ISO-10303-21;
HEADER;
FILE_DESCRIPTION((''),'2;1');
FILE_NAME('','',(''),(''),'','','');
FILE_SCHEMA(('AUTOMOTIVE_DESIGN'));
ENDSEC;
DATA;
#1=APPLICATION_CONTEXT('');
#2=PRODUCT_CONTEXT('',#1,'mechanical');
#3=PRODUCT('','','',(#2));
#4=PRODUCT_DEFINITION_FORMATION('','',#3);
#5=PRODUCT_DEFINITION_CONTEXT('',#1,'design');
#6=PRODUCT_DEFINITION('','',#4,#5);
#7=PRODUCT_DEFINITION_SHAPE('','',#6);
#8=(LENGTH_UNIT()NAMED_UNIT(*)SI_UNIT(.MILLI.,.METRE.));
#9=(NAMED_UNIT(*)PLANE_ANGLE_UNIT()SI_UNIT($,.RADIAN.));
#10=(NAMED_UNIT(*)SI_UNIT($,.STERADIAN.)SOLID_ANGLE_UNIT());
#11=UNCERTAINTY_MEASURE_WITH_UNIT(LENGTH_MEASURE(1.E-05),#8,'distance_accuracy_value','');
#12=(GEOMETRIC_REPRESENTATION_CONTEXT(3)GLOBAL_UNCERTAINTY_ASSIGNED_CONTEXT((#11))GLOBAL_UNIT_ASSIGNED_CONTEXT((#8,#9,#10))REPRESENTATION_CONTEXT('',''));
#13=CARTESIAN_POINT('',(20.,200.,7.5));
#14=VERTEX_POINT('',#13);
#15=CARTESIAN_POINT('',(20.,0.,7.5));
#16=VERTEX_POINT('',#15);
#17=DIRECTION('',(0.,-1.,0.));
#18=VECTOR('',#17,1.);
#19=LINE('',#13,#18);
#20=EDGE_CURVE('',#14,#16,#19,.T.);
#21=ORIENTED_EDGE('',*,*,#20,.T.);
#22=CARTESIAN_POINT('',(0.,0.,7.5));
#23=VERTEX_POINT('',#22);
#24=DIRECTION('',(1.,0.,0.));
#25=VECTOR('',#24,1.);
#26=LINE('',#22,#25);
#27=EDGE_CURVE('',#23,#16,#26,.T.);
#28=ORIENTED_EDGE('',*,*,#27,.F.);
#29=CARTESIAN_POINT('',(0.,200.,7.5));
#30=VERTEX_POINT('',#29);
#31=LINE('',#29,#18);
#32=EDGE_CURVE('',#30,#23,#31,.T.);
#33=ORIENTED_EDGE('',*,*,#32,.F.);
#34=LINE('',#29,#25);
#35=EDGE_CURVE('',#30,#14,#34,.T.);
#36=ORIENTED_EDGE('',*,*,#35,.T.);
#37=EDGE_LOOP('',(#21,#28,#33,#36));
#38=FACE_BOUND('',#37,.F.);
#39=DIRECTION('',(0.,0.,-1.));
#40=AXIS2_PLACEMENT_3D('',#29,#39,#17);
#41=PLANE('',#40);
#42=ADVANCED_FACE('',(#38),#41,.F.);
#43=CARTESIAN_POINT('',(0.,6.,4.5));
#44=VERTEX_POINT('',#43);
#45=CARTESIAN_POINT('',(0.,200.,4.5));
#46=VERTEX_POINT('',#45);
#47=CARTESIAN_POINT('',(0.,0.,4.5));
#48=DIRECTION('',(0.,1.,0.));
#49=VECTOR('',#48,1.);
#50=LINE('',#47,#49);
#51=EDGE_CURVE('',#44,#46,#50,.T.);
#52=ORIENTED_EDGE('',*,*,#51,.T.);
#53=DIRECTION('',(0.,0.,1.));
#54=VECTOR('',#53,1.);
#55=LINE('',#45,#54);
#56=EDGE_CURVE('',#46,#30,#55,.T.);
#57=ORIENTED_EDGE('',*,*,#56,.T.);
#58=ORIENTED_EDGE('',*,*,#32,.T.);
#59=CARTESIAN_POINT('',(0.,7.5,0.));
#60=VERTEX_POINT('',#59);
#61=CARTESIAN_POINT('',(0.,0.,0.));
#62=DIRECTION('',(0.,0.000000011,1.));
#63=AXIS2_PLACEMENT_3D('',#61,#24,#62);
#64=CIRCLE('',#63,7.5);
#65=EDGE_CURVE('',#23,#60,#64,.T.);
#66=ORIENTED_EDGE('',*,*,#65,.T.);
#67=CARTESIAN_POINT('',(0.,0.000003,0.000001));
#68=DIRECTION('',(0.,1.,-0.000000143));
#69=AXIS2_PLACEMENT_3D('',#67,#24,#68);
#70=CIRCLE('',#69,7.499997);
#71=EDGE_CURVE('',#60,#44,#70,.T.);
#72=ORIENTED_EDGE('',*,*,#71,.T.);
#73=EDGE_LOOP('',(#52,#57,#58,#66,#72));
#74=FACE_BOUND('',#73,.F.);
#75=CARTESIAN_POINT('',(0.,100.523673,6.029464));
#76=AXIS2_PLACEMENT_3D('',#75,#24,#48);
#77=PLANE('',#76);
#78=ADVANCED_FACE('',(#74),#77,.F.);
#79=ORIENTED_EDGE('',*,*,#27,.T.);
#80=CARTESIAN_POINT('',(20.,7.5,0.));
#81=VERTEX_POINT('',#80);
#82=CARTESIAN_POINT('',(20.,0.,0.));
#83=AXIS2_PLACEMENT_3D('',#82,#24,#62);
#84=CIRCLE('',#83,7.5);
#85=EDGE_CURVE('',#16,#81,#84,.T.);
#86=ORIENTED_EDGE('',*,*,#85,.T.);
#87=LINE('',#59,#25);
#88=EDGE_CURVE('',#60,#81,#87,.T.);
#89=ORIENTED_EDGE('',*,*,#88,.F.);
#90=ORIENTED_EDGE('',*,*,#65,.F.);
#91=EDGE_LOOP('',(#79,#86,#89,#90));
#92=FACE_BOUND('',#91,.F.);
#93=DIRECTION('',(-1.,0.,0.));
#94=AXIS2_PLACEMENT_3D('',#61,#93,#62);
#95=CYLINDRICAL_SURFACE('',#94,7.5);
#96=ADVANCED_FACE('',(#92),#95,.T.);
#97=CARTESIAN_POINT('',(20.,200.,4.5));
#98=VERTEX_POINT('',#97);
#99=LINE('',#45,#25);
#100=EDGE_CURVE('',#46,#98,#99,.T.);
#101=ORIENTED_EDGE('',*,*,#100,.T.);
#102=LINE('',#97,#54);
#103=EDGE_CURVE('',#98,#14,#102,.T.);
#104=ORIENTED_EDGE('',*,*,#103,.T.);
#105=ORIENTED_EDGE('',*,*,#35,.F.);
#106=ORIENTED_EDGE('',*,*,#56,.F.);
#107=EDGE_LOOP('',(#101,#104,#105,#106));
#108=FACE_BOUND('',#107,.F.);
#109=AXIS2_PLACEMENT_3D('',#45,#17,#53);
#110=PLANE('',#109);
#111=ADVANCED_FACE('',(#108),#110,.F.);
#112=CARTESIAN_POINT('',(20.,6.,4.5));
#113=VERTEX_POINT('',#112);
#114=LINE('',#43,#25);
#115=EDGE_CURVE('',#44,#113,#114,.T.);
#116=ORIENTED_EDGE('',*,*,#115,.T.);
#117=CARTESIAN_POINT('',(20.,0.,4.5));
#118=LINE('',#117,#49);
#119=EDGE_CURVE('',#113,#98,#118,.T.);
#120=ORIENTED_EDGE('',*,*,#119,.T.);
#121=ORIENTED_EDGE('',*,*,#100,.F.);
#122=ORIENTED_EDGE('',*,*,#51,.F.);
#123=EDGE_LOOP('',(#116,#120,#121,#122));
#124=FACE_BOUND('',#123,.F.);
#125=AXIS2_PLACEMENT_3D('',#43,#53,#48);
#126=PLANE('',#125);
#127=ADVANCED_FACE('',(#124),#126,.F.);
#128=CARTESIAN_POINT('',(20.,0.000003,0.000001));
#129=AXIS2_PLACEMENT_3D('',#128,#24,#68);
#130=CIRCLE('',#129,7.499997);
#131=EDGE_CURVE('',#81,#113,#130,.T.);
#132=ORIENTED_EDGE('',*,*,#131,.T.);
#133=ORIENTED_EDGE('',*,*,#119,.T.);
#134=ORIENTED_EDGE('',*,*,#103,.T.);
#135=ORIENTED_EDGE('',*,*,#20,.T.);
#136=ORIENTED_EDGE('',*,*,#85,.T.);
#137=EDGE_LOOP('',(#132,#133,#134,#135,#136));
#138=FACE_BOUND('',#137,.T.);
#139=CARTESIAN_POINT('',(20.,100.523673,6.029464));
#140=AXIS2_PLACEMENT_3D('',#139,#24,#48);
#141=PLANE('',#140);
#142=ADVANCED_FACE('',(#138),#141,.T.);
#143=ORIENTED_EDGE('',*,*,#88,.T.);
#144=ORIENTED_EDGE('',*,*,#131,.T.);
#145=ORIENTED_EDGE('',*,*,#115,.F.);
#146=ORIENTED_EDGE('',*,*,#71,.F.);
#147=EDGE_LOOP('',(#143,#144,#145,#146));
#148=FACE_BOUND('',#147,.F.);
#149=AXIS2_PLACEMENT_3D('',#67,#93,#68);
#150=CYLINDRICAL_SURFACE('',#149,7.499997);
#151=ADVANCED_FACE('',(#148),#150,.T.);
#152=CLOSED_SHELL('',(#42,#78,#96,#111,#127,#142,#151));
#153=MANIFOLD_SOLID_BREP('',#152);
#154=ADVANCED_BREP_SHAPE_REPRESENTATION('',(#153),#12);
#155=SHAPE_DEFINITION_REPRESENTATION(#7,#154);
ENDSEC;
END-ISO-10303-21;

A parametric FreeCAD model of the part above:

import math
import FreeCAD as App
import Part
import Sketcher
Q = App.Units.Quantity

doc = App.newDocument("Part")
params = doc.addObject("Spreadsheet::Sheet", "Params")
for row, (alias, value) in enumerate([
    ("sketch1_radius", "7.5 mm"),
    ("sketch1_width", "200 mm"),
    ("sketch1_width2", "194 mm"),
    ("sketch1_height", "3 mm"),
    ("pad1_length", "20 mm"),
], start=1):
    params.set(f"A{row}", alias)
    params.set(f"B{row}", "=" + value)
    params.setAlias(f"B{row}", alias)

body = doc.addObject("PartDesign::Body", "Body")

sketch1 = body.newObject("Sketcher::SketchObject", "Sketch")
sketch1.AttachmentSupport = (doc.getObject("YZ_Plane"), [""])
sketch1.MapMode = "FlatFace"
sketch1.addGeometry([
    Part.LineSegment(App.Vector(200, 7.5, 0), App.Vector(0, 7.5, 0)),
    Part.ArcOfCircle(Part.Circle(App.Vector(0, 0, 0), App.Vector(0, 0, 1), 7.5), math.radians(89.999999), math.radians(360.000001)),
    Part.ArcOfCircle(Part.Circle(App.Vector(0.000003, 0.000001, 0), App.Vector(0, 0, 1), 7.499997), math.radians(-0.000008), math.radians(36.869906)),
    Part.LineSegment(App.Vector(6, 4.5, 0), App.Vector(200, 4.5, 0)),
    Part.LineSegment(App.Vector(200, 4.5, 0), App.Vector(200, 7.5, 0)),
], False)
sketch1.addConstraint([
    Sketcher.Constraint("Tangent", 0, 2, 1, 1),
    Sketcher.Constraint("Tangent", 1, 2, 2, 1),
    Sketcher.Constraint("Coincident", 2, 2, 3, 1),
    Sketcher.Constraint("Coincident", 3, 2, 4, 1),
    Sketcher.Constraint("Coincident", 4, 2, 0, 1),
    Sketcher.Constraint("Horizontal", 0),
    Sketcher.Constraint("Horizontal", 3),
    Sketcher.Constraint("Vertical", 4),
    Sketcher.Constraint("Coincident", 1, 3, -1, 1),
    Sketcher.Constraint("PointOnObject", 1, 2, -1),
    Sketcher.Constraint("Radius", 1, Q("7.5 mm")),
    Sketcher.Constraint("DistanceX", 0, 2, 0, 1, Q("200 mm")),
    Sketcher.Constraint("DistanceX", 3, 1, 3, 2, Q("194 mm")),
    Sketcher.Constraint("DistanceY", 4, 1, 4, 2, Q("3 mm")),
])
sketch1.setExpression("Constraints[10]", "Params.sketch1_radius")
sketch1.setExpression("Constraints[11]", "Params.sketch1_width")
sketch1.setExpression("Constraints[12]", "Params.sketch1_width2")
sketch1.setExpression("Constraints[13]", "Params.sketch1_height")
pad1 = body.newObject("PartDesign::Pad", "Pad")
pad1.Profile = sketch1
pad1.setExpression("Length", "Params.pad1_length")

doc.recompute()
